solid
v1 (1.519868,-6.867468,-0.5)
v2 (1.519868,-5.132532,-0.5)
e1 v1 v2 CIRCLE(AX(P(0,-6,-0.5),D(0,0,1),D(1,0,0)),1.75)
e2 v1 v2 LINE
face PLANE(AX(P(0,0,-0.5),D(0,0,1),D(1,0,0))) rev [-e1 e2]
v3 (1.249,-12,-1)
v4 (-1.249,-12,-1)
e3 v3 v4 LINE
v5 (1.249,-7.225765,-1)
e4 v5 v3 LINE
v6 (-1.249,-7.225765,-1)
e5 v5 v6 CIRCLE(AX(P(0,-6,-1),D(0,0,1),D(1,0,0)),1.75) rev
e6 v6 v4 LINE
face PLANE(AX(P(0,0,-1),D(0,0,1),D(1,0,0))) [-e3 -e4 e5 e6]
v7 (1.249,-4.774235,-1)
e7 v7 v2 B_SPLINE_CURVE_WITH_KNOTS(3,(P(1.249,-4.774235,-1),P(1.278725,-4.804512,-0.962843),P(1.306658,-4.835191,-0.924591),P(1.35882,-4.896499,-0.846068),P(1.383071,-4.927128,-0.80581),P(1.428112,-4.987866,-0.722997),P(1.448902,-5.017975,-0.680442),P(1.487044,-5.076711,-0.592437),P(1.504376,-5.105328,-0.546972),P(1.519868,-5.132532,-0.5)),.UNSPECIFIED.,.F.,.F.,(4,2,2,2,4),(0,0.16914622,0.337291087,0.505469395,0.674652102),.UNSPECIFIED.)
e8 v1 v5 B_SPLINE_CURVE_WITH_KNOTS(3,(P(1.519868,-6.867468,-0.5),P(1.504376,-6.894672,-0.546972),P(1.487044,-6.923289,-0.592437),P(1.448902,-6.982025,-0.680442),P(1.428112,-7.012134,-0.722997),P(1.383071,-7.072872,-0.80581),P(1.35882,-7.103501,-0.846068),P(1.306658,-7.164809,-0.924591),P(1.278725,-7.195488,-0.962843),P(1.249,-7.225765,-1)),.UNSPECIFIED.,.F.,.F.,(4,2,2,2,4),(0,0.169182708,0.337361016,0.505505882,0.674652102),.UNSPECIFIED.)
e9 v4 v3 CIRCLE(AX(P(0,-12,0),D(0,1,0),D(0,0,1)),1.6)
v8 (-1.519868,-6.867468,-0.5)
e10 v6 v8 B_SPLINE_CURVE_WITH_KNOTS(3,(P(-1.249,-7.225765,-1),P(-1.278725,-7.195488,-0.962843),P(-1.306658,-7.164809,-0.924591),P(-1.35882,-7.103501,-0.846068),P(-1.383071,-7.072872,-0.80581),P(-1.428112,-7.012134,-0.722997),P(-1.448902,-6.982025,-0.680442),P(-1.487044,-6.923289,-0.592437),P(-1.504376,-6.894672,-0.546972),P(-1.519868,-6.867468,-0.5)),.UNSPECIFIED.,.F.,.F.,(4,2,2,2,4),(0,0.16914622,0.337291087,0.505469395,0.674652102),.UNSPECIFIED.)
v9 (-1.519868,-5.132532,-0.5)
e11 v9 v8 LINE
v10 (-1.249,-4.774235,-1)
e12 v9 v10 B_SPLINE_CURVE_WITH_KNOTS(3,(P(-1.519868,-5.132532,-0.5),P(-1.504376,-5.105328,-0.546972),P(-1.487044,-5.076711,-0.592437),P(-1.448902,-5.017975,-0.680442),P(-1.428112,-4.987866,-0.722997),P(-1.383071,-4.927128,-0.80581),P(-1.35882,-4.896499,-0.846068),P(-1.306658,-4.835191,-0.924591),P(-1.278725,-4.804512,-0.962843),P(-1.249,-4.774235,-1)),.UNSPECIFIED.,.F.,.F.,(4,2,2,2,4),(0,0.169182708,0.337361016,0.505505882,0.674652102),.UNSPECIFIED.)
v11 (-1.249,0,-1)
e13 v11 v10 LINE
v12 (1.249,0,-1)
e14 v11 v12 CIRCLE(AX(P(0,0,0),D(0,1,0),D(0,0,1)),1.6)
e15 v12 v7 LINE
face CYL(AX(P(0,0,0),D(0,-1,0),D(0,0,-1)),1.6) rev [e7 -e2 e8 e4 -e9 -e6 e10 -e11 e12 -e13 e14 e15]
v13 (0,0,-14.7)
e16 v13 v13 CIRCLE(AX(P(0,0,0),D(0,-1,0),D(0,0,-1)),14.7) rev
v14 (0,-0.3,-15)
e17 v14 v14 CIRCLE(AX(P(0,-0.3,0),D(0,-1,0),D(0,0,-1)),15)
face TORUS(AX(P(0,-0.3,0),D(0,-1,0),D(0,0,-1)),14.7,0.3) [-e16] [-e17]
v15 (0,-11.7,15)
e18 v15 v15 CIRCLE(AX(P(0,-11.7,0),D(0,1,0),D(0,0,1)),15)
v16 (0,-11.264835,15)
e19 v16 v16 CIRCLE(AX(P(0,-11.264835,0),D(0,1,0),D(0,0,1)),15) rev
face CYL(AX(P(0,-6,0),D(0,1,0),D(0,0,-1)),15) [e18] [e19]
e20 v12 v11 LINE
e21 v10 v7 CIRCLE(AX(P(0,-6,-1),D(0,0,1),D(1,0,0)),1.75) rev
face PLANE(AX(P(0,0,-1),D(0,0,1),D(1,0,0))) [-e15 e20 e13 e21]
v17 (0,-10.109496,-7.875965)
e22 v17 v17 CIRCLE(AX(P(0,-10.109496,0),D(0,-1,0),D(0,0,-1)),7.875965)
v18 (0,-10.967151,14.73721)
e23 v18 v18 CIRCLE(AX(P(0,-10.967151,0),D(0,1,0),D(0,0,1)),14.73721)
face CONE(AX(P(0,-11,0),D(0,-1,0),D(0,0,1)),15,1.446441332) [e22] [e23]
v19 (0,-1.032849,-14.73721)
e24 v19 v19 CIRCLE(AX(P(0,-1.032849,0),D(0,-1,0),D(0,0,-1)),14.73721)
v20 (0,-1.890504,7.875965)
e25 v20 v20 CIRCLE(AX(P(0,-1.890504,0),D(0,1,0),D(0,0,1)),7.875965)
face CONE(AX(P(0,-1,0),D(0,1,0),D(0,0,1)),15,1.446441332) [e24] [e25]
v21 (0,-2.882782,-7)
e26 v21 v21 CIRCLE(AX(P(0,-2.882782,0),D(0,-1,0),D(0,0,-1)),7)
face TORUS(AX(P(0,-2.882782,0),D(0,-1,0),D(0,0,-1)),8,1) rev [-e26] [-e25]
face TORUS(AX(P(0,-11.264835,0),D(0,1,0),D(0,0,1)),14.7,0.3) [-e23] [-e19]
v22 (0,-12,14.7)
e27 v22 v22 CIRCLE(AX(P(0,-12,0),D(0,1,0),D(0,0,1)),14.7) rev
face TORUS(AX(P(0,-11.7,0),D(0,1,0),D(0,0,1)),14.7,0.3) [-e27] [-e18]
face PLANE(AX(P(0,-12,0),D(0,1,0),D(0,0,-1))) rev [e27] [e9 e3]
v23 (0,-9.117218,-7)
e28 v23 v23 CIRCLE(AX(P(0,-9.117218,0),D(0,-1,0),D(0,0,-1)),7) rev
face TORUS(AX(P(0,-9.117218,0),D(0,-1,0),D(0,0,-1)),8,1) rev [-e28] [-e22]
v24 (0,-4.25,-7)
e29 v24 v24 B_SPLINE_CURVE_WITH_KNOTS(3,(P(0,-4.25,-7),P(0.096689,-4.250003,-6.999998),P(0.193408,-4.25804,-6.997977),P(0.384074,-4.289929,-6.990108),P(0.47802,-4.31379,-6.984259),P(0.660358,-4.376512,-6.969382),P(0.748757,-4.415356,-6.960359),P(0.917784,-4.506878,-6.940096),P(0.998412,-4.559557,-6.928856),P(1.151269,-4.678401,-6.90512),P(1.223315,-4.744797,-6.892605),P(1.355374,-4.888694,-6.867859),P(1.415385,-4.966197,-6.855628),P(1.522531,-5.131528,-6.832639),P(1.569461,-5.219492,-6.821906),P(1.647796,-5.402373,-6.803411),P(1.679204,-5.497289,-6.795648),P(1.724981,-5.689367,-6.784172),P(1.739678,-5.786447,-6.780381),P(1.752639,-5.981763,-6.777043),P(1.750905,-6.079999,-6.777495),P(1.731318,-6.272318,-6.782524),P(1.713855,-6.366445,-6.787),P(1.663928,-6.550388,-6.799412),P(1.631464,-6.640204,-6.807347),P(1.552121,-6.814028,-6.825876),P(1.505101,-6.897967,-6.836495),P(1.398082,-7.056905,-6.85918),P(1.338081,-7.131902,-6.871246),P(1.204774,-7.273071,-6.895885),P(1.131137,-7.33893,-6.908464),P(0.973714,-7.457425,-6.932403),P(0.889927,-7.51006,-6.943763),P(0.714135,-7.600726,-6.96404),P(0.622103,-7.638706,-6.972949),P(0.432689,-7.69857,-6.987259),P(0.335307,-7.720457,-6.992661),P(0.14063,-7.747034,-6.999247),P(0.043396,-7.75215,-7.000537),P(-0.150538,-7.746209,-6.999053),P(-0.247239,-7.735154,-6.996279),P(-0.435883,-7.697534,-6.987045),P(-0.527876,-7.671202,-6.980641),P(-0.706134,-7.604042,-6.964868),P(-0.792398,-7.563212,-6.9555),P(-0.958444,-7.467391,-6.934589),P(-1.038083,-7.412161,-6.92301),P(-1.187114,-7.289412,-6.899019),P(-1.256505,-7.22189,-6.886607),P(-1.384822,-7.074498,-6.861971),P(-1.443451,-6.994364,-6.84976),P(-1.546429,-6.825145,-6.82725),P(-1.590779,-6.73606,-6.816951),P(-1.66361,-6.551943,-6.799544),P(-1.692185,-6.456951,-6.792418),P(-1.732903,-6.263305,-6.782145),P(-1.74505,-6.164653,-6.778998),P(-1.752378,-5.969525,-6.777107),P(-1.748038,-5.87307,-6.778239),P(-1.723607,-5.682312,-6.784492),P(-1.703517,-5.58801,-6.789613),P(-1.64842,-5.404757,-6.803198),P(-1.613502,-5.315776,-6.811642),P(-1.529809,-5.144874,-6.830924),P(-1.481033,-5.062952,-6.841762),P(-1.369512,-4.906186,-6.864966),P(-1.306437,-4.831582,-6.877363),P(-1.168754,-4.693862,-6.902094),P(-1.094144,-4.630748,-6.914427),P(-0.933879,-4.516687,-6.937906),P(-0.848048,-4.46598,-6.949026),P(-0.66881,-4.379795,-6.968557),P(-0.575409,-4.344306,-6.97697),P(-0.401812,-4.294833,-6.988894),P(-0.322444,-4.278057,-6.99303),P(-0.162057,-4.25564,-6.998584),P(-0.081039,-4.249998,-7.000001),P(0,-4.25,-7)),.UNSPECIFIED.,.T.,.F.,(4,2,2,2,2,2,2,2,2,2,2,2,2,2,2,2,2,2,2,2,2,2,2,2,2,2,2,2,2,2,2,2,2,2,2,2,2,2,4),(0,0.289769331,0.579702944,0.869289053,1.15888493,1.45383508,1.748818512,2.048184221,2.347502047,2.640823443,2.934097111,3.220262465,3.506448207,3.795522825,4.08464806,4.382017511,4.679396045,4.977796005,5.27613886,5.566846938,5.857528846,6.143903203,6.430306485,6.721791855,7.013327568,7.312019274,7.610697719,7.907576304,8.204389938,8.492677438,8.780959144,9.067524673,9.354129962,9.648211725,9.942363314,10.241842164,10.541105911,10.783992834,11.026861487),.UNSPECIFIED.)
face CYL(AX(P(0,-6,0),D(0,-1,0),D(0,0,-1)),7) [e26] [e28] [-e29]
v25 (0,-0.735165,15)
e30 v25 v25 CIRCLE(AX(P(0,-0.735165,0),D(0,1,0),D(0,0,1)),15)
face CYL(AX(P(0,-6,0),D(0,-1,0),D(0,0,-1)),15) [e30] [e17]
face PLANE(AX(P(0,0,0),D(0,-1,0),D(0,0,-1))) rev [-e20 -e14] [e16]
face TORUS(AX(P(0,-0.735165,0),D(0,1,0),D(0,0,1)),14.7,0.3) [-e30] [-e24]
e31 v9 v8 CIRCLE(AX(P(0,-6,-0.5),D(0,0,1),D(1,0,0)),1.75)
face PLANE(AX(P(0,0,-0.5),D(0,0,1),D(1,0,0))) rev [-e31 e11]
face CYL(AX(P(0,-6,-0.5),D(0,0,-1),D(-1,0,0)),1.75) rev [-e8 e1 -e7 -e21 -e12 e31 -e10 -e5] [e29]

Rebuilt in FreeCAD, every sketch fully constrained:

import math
import FreeCAD as App
import Part
import Sketcher
from FreeCAD import Vector


def edges_at(feature, points):
    """Names of the edges that pass closest to the given points."""
    edges = feature.Shape.Edges
    near = lambda p: min(range(len(edges)), key=lambda i: edges[i].distToShape(Part.Vertex(*p))[0])
    return sorted({f"Edge{near(p) + 1}" for p in points})


def add_polygon(sketch, points):
    """Adds a closed chain of lines whose ends are joined by coincident constraints."""
    first, n = sketch.GeometryCount, len(points)
    for a, b in zip(points, points[1:] + points[:1]):
        sketch.addGeometry(Part.LineSegment(App.Vector(*a, 0), App.Vector(*b, 0)), False)
    for i in range(n):
        sketch.addConstraint(Sketcher.Constraint("Coincident", first + i, 2, first + (i + 1) % n, 1))

doc = App.newDocument("Part")
body = doc.addObject("PartDesign::Body", "Body")

# Sketch on XY plane
sketch1 = body.newObject("Sketcher::SketchObject", "Sketch")
sketch1.AttachmentSupport = (doc.getObject("XY_Plane"), [""])
sketch1.MapMode = "FlatFace"
add_polygon(sketch1, [(0, 0), (-15, 0), (-15, -1), (-7, -2), (-7, -6), (0, -6)])  # lines 0-5
sketch1.addConstraint([
    Sketcher.Constraint("Horizontal", 0),
    Sketcher.Constraint("Vertical", 1),
    Sketcher.Constraint("Vertical", 3),
    Sketcher.Constraint("Horizontal", 4),
    Sketcher.Constraint("Vertical", 5),
    Sketcher.Constraint("Coincident", 5, 2, -1, 1),
    Sketcher.Constraint("DistanceX", 0, 2, 0, 1, 15.0),
    Sketcher.Constraint("DistanceX", 4, 1, 4, 2, 7.0),
    Sketcher.Constraint("DistanceY", 1, 2, 1, 1, 1.0),
    Sketcher.Constraint("DistanceY", 3, 2, 3, 1, 4.0),
    Sketcher.Constraint("DistanceY", 5, 1, 5, 2, 6.0),
])
revolution = body.newObject("PartDesign::Revolution", "Revolution")
revolution.Profile = sketch1
revolution.ReferenceAxis = (sketch1, ["V_Axis"])
revolution.Angle = 360
doc.recompute()

datumplane = body.newObject("PartDesign::Plane", "DatumPlane")
datumplane.AttachmentSupport = (doc.getObject("XZ_Plane"), [""])
datumplane.MapMode = "FlatFace"
datumplane.AttachmentOffset = App.Placement(Vector(0, 0, 6), App.Rotation())
mirrored = body.newObject("PartDesign::Mirrored", "Mirrored")
mirrored.Originals = [revolution]
mirrored.MirrorPlane = (datumplane, [""])
body.Tip = mirrored

# Sketch on XZ plane
sketch2 = body.newObject("Sketcher::SketchObject", "Sketch001")
sketch2.AttachmentSupport = (doc.getObject("XZ_Plane"), [""])
sketch2.MapMode = "FlatFace"
sketch2.AttachmentOffset = App.Placement(Vector(0, 0, 12), App.Rotation())
sketch2.addGeometry([
    Part.LineSegment(Vector(1.249, -1, 0), Vector(-1.249, -1, 0)),
    Part.ArcOfCircle(Part.Circle(Vector(0, 0, 0), Vector(0, 0, 1), 1.6), math.radians(-38.682187), math.radians(218.682187)),
], False)
sketch2.addConstraint([
    Sketcher.Constraint("Coincident", 0, 1, 1, 1),
    Sketcher.Constraint("Coincident", 1, 2, 0, 2),
    Sketcher.Constraint("Horizontal", 0),
    Sketcher.Constraint("Coincident", 1, 3, -1, 1),
    Sketcher.Constraint("Radius", 1, 1.6),
    Sketcher.Constraint("DistanceY", 0, 1, -1, 1, 1.0),
])
pocket1 = body.newObject("PartDesign::Pocket", "Pocket")
pocket1.Profile = sketch2
pocket1.Type = "ThroughAll"
doc.recompute()

fillet = body.newObject("PartDesign::Fillet", "Fillet")
fillet.Base = (pocket1, edges_at(pocket1, [(0, -10, 7), (0, -2, 7)]))
fillet.Radius = 1
doc.recompute()

fillet2 = body.newObject("PartDesign::Fillet", "Fillet001")
fillet2.Base = (fillet, edges_at(fillet, [
    (0, -12, 15),
    (0, -11, 15),
    (0, -1, 15),
    (0, 0, 15),
]))
fillet2.Radius = 0.3

# Sketch on XY plane
sketch3 = body.newObject("Sketcher::SketchObject", "Sketch002")
sketch3.AttachmentSupport = (doc.getObject("XY_Plane"), [""])
sketch3.MapMode = "FlatFace"
sketch3.AttachmentOffset = App.Placement(Vector(0, 0, -11), App.Rotation())
sketch3.addGeometry([
    Part.ArcOfCircle(Part.Circle(Vector(0, -6, 0), Vector(0, 0, 1), 1.75), math.radians(0), math.radians(90)),
    Part.ArcOfCircle(Part.Circle(Vector(0, -6, 0), Vector(0, 0, 1), 1.75), math.radians(90), math.radians(270)),
    Part.ArcOfCircle(Part.Circle(Vector(0, -6, 0), Vector(0, 0, 1), 1.75), math.radians(-90), math.radians(0)),
], False)
sketch3.addConstraint([
    Sketcher.Constraint("Tangent", 0, 2, 1, 1),
    Sketcher.Constraint("Tangent", 1, 2, 2, 1),
    Sketcher.Constraint("Tangent", 2, 2, 0, 1),
    Sketcher.Constraint("PointOnObject", 0, 3, -2),
    Sketcher.Constraint("PointOnObject", 0, 2, -2),
    Sketcher.Constraint("PointOnObject", 1, 2, -2),
    Sketcher.Constraint("Horizontal", 1, 3, 2, 2),
    Sketcher.Constraint("Radius", 0, 1.75),
    Sketcher.Constraint("DistanceY", 0, 3, -1, 1, 6.0),
])
pocket2 = body.newObject("PartDesign::Pocket", "Pocket001")
pocket2.Profile = sketch3
pocket2.Length = 10.5
pocket2.Reversed = True

doc.recompute()
